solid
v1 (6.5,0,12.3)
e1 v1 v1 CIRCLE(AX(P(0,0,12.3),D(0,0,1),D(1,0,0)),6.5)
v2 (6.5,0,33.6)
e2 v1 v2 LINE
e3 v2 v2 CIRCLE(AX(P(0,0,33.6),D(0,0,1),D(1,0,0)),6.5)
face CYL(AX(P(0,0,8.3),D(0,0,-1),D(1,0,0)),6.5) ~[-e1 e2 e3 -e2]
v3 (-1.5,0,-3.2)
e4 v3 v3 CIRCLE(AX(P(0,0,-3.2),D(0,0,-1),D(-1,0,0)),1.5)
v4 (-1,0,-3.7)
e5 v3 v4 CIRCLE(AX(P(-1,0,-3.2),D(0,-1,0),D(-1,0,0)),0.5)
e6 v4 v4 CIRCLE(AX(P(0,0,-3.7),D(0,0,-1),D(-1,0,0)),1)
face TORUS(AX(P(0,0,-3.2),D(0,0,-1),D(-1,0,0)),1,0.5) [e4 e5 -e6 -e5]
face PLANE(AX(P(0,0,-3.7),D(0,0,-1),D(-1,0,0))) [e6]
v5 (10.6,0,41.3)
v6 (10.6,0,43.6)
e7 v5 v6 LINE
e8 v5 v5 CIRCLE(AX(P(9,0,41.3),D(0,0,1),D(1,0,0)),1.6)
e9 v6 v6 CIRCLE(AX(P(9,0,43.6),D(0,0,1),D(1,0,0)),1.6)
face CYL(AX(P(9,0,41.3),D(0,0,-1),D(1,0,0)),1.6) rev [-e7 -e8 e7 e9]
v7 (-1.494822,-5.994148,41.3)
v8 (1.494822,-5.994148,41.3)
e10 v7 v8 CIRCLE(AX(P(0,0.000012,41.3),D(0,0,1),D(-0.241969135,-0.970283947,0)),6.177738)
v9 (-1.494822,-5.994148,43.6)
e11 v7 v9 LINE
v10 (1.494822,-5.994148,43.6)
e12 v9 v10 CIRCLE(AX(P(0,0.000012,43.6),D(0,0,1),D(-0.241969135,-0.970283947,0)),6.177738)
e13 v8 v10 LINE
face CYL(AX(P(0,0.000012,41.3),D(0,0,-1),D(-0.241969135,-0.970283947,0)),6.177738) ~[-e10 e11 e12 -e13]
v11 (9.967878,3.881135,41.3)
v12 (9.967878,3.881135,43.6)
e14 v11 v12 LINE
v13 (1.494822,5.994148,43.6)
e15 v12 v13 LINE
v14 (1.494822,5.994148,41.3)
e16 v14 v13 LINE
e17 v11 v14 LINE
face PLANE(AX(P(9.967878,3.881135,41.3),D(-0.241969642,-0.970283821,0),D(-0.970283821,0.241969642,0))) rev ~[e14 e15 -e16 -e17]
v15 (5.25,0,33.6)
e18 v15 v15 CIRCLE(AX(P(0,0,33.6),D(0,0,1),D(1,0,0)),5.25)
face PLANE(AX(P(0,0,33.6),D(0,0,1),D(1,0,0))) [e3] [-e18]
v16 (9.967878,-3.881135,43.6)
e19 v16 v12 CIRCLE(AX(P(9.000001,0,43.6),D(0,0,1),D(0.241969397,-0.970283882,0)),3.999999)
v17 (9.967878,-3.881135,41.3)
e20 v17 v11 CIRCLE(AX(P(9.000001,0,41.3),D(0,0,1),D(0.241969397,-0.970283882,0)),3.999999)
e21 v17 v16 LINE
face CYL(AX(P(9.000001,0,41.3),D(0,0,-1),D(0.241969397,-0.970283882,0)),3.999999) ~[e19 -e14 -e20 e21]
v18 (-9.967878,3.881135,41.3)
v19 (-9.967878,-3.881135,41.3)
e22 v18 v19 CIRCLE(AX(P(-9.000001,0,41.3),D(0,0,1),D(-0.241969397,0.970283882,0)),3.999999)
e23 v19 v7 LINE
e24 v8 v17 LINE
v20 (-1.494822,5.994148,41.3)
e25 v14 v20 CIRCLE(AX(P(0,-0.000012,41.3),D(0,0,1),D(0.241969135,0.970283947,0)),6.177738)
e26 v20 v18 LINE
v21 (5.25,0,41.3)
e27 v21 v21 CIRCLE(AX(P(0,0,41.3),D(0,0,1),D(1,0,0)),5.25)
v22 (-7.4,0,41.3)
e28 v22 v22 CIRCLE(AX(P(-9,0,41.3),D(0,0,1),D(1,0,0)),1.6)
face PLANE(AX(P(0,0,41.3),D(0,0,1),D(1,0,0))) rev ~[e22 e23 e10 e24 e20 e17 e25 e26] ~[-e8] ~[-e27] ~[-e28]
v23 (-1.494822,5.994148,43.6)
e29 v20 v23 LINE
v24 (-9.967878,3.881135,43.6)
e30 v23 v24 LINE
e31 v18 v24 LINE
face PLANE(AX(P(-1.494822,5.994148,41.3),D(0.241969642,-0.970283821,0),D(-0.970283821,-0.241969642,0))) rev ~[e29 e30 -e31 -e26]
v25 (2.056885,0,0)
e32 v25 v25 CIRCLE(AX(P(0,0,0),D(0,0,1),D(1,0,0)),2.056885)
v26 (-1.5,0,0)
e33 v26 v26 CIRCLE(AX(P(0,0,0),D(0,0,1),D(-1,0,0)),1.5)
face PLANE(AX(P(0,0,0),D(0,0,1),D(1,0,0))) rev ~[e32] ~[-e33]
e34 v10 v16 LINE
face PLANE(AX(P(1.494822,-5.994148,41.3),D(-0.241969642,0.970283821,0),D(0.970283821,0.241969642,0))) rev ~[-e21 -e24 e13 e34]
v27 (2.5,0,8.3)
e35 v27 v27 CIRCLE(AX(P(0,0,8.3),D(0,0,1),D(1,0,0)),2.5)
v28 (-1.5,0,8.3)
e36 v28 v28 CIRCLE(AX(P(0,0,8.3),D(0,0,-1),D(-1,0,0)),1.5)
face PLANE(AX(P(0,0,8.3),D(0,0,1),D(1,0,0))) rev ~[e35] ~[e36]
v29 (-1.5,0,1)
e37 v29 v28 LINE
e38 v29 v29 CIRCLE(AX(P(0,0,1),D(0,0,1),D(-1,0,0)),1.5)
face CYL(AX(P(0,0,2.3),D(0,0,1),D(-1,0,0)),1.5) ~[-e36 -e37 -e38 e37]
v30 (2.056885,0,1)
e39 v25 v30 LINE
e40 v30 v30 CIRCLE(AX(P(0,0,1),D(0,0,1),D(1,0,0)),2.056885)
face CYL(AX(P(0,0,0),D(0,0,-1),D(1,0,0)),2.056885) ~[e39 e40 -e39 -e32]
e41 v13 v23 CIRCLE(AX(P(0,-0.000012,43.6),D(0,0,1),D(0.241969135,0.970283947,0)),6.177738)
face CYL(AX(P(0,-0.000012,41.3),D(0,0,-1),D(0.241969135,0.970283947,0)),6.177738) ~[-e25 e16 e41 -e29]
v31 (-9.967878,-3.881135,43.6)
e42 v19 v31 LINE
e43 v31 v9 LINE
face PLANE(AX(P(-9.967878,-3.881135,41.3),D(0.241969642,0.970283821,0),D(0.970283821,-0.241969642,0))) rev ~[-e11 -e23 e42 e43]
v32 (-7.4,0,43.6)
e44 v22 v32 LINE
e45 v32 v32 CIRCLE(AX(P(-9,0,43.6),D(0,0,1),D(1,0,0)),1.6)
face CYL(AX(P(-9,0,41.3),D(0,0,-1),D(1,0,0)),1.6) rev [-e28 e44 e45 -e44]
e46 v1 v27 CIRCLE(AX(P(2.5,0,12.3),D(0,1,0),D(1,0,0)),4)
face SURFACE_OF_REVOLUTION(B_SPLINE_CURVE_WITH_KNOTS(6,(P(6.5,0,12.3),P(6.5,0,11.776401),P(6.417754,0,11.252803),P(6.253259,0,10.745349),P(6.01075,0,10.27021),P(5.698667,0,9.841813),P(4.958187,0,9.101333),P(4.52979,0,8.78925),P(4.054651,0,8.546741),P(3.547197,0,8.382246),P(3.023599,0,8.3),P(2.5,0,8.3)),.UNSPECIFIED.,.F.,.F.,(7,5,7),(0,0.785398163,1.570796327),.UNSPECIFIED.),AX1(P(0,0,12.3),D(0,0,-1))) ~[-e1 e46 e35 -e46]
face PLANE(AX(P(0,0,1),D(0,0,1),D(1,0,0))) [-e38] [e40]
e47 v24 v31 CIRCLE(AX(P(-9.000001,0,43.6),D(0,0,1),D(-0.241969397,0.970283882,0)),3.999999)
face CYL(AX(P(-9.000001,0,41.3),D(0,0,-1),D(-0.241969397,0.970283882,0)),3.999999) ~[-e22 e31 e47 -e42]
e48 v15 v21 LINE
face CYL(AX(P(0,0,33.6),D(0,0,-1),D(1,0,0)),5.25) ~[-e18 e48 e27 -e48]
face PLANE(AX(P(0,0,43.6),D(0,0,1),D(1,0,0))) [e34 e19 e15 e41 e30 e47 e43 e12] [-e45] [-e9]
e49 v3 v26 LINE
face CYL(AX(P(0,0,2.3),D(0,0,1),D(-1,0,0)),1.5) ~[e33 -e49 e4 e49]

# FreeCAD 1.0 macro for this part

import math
import FreeCAD as App
import Part
import Sketcher

V = App.Vector
Q = App.Units.Quantity


def edges_at(feature, points):
    """Names of the edges that pass closest to the given points."""
    edges = feature.Shape.Edges
    near = lambda p: min(range(len(edges)), key=lambda i: edges[i].distToShape(Part.Vertex(*p))[0])
    return sorted({f"Edge{near(p) + 1}" for p in points})


def add_polygon(sketch, points):
    """Adds a closed chain of lines whose ends are joined by coincident constraints."""
    first, n = sketch.GeometryCount, len(points)
    for a, b in zip(points, points[1:] + points[:1]):
        sketch.addGeometry(Part.LineSegment(App.Vector(*a, 0), App.Vector(*b, 0)), False)
    for i in range(n):
        sketch.addConstraint(Sketcher.Constraint("Coincident", first + i, 2, first + (i + 1) % n, 1))

doc = App.newDocument("Part")
body = doc.addObject("PartDesign::Body", "Body")

# Sketch on XZ plane
sketch1 = body.newObject("Sketcher::SketchObject", "Sketch")
sketch1.AttachmentSupport = (doc.getObject("XZ_Plane"), [""])
sketch1.MapMode = "FlatFace"
add_polygon(sketch1, [(-1.5, 8.3), (-1.5, -3.7), (0, -3.7), (0, 8.3)])  # lines 0-3
sketch1.addConstraint([
    Sketcher.Constraint("Vertical", 0),
    Sketcher.Constraint("Horizontal", 1),
    Sketcher.Constraint("Vertical", 2),
    Sketcher.Constraint("Horizontal", 3),
    Sketcher.Constraint("PointOnObject", 1, 2, -2),
    Sketcher.Constraint("DistanceY", 0, 2, 0, 1, Q("12 mm")),
    Sketcher.Constraint("DistanceX", 1, 1, 1, 2, Q("1.5 mm")),
    Sketcher.Constraint("DistanceY", 0, 2, -1, 1, Q("3.7 mm")),
])
revolution = body.newObject("PartDesign::Revolution", "Revolution")
revolution.Profile = sketch1
revolution.ReferenceAxis = (sketch1, ["V_Axis"])
revolution.Angle = 360

# Sketch on XY plane
sketch2 = body.newObject("Sketcher::SketchObject", "Sketch001")
sketch2.AttachmentSupport = (doc.getObject("XY_Plane"), [""])
sketch2.MapMode = "FlatFace"
sketch2.AttachmentOffset = App.Placement(V(0, 0, 8.3), App.Rotation())
sketch2.addGeometry(Part.Circle(V(0, 0, 0), V(0, 0, 1), 6.5), False)
sketch2.addConstraint([
    Sketcher.Constraint("Coincident", 0, 3, -1, 1),
    Sketcher.Constraint("Diameter", 0, Q("13 mm")),
])
pad1 = body.newObject("PartDesign::Pad", "Pad")
pad1.Profile = sketch2
pad1.Length = 25.3

# Sketch on XY plane
sketch3 = body.newObject("Sketcher::SketchObject", "Sketch002")
sketch3.AttachmentSupport = (doc.getObject("XY_Plane"), [""])
sketch3.MapMode = "FlatFace"
sketch3.AttachmentOffset = App.Placement(V(0, 0, 33.6), App.Rotation())
sketch3.addGeometry(Part.Circle(V(0, 0, 0), V(0, 0, 1), 5.25), False)
sketch3.addConstraint([
    Sketcher.Constraint("Coincident", 0, 3, -1, 1),
    Sketcher.Constraint("Diameter", 0, Q("10.5 mm")),
])
pad2 = body.newObject("PartDesign::Pad", "Pad001")
pad2.Profile = sketch3
pad2.Length = 7.7

# Sketch on XY plane
sketch4 = body.newObject("Sketcher::SketchObject", "Sketch003")
sketch4.AttachmentSupport = (doc.getObject("XY_Plane"), [""])
sketch4.MapMode = "FlatFace"
sketch4.AttachmentOffset = App.Placement(V(0, 0, 41.3), App.Rotation())
sketch4.addGeometry([
    Part.LineSegment(V(-1.494822, 5.994148, 0), V(-9.967878, 3.881135, 0)),  # 0
    Part.ArcOfCircle(Part.Circle(V(-9.000001, 0, 0), V(0, 0, 1), 3.999999), math.radians(104.002805), math.radians(255.997195)),  # 1
    Part.LineSegment(V(-9.967878, -3.881135, 0), V(-1.494822, -5.994148, 0)),  # 2
    Part.ArcOfCircle(Part.Circle(V(0, 0.000012, 0), V(0, 0, 1), 6.177738), math.radians(-104.002789), math.radians(-75.997211)),  # 3
    Part.LineSegment(V(1.494822, -5.994148, 0), V(9.967878, -3.881135, 0)),  # 4
    Part.ArcOfCircle(Part.Circle(V(9.000001, 0, 0), V(0, 0, 1), 3.999999), math.radians(-75.997195), math.radians(75.997195)),  # 5
    Part.LineSegment(V(9.967878, 3.881135, 0), V(1.494822, 5.994148, 0)),  # 6
    Part.ArcOfCircle(Part.Circle(V(0, -0.000012, 0), V(0, 0, 1), 6.177738), math.radians(75.997211), math.radians(104.002789)),  # 7
    Part.Circle(V(-9, 0, 0), V(0, 0, 1), 1.6),  # 8
    Part.Circle(V(9, 0, 0), V(0, 0, 1), 1.6),  # 9
], False)
sketch4.addConstraint([
    Sketcher.Constraint("Tangent", 0, 2, 1, 1),
    Sketcher.Constraint("Tangent", 1, 2, 2, 1),
    Sketcher.Constraint("Tangent", 2, 2, 3, 1),
    Sketcher.Constraint("Tangent", 3, 2, 4, 1),
    Sketcher.Constraint("Tangent", 4, 2, 5, 1),
    Sketcher.Constraint("Tangent", 5, 2, 6, 1),
    Sketcher.Constraint("Tangent", 6, 2, 7, 1),
    Sketcher.Constraint("Tangent", 7, 2, 0, 1),
    Sketcher.Constraint("Coincident", 8, 3, 1, 3),
    Sketcher.Constraint("Coincident", 9, 3, 5, 3),
    Sketcher.Constraint("Equal", 1, 5),
    Sketcher.Constraint("Equal", 3, 7),
    Sketcher.Constraint("Equal", 8, 9),
    Sketcher.Constraint("Symmetric", 1, 3, 5, 3, -1, 1),
    Sketcher.Constraint("Symmetric", 3, 3, 7, 3, -1, 1),
    Sketcher.Constraint("Symmetric", 2, 2, 3, 2, -2),
    Sketcher.Constraint("Radius", 1, Q("3.999999 mm")),
    Sketcher.Constraint("Diameter", 8, Q("3.2 mm")),
    Sketcher.Constraint("DistanceX", 1, 3, -1, 1, Q("9.000001 mm")),
    Sketcher.Constraint("Radius", 3, Q("6.177738 mm")),
    Sketcher.Constraint("DistanceX", 0, 2, -1, 1, Q("9.967878 mm")),
])
pad3 = body.newObject("PartDesign::Pad", "Pad002")
pad3.Profile = sketch4
pad3.Length = 2.3
doc.recompute()

fillet = body.newObject("PartDesign::Fillet", "Fillet")
fillet.Base = (pad3, edges_at(pad3, [(-6.5, 0, 8.3)]))
fillet.Radius = 4
doc.recompute()

fillet2 = body.newObject("PartDesign::Fillet", "Fillet001")
fillet2.Base = (fillet, edges_at(fillet, [(1.5, 0, -3.7)]))
fillet2.Radius = 0.5

# Sketch on XY plane
sketch5 = body.newObject("Sketcher::SketchObject", "Sketch004")
sketch5.AttachmentSupport = (doc.getObject("XY_Plane"), [""])
sketch5.MapMode = "FlatFace"
sketch5.addGeometry(Part.Circle(V(0, 0, 0), V(0, 0, 1), 2.056885), False)
sketch5.addConstraint([
    Sketcher.Constraint("Coincident", 0, 3, -1, 1),
    Sketcher.Constraint("Diameter", 0, Q("4.11377 mm")),
])
pad4 = body.newObject("PartDesign::Pad", "Pad003")
pad4.Profile = sketch5
pad4.Length = 1

doc.recompute()
